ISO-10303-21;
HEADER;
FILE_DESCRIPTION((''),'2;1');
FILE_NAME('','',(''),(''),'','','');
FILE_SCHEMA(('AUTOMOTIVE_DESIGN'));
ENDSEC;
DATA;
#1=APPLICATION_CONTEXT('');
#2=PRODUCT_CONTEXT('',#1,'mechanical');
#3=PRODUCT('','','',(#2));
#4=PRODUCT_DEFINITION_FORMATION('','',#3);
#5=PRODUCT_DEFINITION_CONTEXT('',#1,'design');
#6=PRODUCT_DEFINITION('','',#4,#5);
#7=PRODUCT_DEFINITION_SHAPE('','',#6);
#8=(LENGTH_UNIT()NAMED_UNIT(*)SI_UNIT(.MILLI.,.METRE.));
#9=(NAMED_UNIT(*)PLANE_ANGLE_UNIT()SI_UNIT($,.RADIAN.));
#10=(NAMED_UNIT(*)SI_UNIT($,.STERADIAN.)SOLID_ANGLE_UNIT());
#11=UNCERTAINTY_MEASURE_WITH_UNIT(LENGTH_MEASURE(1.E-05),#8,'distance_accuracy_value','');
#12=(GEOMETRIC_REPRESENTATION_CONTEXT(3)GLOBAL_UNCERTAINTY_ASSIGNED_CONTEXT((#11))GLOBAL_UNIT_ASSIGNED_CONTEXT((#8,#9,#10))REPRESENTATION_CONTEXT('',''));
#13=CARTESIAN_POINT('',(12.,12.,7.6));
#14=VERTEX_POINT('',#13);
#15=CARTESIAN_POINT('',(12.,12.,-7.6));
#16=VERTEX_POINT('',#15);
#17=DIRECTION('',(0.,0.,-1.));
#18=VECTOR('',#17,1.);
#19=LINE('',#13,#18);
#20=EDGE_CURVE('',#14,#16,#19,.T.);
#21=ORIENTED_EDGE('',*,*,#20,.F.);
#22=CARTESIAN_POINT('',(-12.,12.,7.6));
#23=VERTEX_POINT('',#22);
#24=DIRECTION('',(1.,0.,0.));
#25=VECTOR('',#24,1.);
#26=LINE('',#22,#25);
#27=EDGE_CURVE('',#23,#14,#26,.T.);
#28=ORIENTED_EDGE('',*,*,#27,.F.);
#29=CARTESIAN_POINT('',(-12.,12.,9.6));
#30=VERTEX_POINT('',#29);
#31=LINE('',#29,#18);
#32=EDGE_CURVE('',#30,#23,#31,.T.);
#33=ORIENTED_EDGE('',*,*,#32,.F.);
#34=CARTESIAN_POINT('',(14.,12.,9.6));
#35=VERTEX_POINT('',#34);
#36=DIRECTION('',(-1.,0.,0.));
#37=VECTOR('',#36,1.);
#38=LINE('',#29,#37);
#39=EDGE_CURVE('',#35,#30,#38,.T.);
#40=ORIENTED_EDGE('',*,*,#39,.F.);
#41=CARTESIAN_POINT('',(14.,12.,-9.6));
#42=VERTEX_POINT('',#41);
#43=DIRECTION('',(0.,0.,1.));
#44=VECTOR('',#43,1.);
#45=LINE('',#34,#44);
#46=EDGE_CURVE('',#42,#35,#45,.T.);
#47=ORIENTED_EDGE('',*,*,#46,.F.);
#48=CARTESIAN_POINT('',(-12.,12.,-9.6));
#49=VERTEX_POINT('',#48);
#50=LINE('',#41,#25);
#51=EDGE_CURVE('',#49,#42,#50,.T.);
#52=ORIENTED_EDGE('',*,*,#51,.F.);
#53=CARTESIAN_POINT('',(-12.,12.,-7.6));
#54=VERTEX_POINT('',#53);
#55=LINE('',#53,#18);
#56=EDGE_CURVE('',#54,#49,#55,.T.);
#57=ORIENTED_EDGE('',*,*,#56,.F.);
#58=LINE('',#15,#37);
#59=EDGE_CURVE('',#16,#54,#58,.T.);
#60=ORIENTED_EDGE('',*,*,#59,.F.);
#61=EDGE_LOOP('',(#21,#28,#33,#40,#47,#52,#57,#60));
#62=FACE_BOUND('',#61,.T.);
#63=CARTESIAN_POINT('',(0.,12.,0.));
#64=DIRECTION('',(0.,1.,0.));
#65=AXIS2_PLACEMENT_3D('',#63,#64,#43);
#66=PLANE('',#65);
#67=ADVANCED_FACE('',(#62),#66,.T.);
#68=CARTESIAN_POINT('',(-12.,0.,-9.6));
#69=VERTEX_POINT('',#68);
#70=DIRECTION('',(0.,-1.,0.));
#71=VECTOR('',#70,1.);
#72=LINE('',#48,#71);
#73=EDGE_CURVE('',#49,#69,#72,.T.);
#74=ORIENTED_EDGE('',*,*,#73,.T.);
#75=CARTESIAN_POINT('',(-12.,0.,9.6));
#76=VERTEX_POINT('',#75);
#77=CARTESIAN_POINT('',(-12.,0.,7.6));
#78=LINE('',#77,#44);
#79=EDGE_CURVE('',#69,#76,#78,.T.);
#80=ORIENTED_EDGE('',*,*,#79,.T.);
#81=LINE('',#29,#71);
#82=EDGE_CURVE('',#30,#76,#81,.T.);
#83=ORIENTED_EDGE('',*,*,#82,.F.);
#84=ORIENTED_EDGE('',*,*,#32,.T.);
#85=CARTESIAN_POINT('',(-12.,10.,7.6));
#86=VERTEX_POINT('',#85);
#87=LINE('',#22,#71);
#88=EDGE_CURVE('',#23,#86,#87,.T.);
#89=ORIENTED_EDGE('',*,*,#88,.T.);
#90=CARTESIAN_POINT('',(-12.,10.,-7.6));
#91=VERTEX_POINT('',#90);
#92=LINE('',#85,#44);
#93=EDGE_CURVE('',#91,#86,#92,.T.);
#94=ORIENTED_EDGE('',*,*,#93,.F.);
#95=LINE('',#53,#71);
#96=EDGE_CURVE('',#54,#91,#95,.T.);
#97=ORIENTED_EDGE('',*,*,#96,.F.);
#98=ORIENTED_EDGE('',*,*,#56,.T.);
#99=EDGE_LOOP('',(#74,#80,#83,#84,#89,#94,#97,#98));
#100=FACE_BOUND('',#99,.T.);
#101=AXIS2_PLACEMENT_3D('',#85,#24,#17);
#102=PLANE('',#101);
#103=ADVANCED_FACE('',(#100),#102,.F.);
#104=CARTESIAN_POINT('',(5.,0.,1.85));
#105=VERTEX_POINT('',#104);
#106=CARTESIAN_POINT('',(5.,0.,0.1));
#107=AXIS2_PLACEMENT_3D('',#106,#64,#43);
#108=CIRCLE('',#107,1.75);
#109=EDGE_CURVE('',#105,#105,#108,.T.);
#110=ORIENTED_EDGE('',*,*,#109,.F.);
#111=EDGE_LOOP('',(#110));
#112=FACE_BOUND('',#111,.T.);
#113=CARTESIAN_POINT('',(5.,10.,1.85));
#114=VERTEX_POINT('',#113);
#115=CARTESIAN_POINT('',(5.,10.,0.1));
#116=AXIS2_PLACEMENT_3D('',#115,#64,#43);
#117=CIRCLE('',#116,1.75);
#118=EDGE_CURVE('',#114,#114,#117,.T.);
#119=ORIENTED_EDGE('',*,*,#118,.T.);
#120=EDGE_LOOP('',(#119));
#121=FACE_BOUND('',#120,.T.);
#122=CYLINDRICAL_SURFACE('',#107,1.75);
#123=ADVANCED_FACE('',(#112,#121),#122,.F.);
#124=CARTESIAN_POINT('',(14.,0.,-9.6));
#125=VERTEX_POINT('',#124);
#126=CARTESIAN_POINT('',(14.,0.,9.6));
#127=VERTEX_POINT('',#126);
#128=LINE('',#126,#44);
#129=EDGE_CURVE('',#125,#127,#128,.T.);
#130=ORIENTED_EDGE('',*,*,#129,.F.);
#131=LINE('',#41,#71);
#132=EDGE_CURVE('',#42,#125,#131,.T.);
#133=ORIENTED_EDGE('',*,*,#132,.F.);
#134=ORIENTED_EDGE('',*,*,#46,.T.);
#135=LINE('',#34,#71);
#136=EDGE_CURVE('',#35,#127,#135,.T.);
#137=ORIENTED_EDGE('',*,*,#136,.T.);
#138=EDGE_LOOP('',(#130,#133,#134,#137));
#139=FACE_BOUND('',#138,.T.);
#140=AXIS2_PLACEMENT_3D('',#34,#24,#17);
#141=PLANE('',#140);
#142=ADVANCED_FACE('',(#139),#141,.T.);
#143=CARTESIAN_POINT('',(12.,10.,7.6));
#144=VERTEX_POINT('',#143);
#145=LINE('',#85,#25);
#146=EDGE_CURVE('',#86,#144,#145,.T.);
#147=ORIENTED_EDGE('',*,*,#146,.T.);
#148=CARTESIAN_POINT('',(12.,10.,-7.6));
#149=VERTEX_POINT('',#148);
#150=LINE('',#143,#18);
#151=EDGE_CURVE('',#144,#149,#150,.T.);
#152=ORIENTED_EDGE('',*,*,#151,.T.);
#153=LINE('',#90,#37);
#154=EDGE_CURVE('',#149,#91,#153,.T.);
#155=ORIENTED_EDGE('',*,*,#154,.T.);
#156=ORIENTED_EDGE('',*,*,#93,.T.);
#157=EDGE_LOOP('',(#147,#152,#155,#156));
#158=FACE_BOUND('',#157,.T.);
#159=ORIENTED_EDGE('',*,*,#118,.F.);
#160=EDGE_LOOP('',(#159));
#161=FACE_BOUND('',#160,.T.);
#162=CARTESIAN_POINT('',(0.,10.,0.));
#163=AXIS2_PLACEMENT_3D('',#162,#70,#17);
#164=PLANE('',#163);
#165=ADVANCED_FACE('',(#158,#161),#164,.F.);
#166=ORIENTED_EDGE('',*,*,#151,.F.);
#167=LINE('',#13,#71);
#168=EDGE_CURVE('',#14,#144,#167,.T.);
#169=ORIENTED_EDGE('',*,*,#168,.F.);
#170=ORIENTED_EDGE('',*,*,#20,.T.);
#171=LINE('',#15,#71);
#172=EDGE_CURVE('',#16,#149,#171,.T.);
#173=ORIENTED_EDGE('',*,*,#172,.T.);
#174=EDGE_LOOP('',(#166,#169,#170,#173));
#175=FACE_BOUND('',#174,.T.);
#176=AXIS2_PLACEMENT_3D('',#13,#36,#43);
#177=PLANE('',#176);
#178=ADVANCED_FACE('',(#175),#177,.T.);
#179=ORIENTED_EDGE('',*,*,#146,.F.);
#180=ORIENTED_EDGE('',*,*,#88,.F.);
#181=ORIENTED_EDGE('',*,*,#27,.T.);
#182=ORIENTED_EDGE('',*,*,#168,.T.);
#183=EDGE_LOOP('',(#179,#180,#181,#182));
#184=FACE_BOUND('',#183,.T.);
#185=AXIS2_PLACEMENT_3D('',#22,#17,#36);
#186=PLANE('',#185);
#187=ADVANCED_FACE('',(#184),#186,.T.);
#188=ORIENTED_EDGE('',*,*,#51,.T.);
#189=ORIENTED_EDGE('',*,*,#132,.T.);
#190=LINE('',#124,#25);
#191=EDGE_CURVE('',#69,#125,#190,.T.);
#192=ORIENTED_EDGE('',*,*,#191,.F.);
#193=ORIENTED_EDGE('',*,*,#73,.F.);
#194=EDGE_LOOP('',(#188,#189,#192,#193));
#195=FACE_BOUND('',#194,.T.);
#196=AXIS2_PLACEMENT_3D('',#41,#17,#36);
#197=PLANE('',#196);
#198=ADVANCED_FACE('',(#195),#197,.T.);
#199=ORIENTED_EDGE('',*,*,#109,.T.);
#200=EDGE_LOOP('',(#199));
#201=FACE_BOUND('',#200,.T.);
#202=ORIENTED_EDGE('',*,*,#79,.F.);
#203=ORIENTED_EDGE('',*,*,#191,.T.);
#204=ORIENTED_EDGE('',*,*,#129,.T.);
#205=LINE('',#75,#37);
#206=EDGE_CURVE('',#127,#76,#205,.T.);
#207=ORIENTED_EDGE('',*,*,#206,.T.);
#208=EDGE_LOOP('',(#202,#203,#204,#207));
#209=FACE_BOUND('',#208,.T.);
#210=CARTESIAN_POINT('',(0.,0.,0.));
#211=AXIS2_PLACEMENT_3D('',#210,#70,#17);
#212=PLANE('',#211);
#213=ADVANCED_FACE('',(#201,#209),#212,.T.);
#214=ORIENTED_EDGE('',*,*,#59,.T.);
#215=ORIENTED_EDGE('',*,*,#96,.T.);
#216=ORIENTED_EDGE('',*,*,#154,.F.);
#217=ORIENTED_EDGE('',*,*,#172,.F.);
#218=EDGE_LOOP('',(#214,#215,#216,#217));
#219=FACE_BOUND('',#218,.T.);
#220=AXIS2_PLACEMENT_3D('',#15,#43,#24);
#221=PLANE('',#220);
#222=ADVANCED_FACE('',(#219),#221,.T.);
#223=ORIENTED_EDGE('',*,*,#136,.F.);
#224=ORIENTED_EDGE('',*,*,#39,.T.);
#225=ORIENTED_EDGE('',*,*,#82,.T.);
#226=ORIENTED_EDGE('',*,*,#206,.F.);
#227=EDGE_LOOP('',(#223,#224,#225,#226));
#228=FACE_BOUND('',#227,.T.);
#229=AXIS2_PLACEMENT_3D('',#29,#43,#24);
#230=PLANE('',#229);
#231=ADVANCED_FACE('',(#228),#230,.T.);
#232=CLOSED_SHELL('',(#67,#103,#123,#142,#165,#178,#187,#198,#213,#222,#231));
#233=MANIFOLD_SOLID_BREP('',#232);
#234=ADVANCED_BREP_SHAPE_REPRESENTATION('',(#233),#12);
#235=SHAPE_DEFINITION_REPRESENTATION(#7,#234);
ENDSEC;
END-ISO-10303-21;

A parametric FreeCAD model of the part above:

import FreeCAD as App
import Part
import Sketcher
from FreeCAD import Vector
Q = App.Units.Quantity


def add_polygon(sketch, points):
    """Adds a closed chain of lines whose ends are joined by coincident constraints."""
    first, n = sketch.GeometryCount, len(points)
    for a, b in zip(points, points[1:] + points[:1]):
        sketch.addGeometry(Part.LineSegment(App.Vector(*a, 0), App.Vector(*b, 0)), False)
    for i in range(n):
        sketch.addConstraint(Sketcher.Constraint("Coincident", first + i, 2, first + (i + 1) % n, 1))

doc = App.newDocument("Part")
body = doc.addObject("PartDesign::Body", "Body")

# Sketch on XZ plane
sketch1 = body.newObject("Sketcher::SketchObject", "Sketch")
sketch1.AttachmentSupport = (doc.getObject("XZ_Plane"), [""])
sketch1.MapMode = "FlatFace"
add_polygon(sketch1, [(-12, -8), (-12, 8), (12, 8), (12, -8)])  # lines 0-3
sketch1.addConstraint([
    Sketcher.Constraint("Vertical", 0),
    Sketcher.Constraint("Horizontal", 1),
    Sketcher.Constraint("Vertical", 2),
    Sketcher.Constraint("Horizontal", 3),
    Sketcher.Constraint("Symmetric", 0, 2, 2, 2, -1, 1),
    Sketcher.Constraint("DistanceX", 1, 1, 1, 2, Q("24 mm")),
    Sketcher.Constraint("DistanceY", 0, 1, 0, 2, Q("15.2 mm")),
])
pad1 = body.newObject("PartDesign::Pad", "Pad")
pad1.Profile = sketch1
pad1.Length = 10
pad1.Reversed = True

# Sketch on XZ plane
sketch2 = body.newObject("Sketcher::SketchObject", "Sketch001")
sketch2.AttachmentSupport = (doc.getObject("XZ_Plane"), [""])
sketch2.MapMode = "FlatFace"
sketch2.AttachmentOffset = App.Placement(Vector(0, 0, -10), App.Rotation())
sketch2.addGeometry(Part.Circle(Vector(5, 0.1, 0), Vector(0, 0, 1), 1.8), False)
sketch2.addConstraint([
    Sketcher.Constraint("Diameter", 0, Q("3.5 mm")),
    Sketcher.Constraint("DistanceX", -1, 1, 0, 3, Q("5 mm")),
    Sketcher.Constraint("DistanceY", -1, 1, 0, 3, Q("0.1 mm")),
])
pocket1 = body.newObject("PartDesign::Pocket", "Pocket")
pocket1.Profile = sketch2
pocket1.Length = 10
pocket1.Reversed = True

# Sketch on XZ plane
sketch3 = body.newObject("Sketcher::SketchObject", "Sketch002")
sketch3.AttachmentSupport = (doc.getObject("XZ_Plane"), [""])
sketch3.MapMode = "FlatFace"
add_polygon(sketch3, [(-12, 9.6), (-12, 7.6), (12, 7.6), (12, -7.6), (-12, -7.6), (-12, -9.6), (14, -9.6), (14, 9.6)])  # lines 0-7
sketch3.addConstraint([
    Sketcher.Constraint("Vertical", 0),
    Sketcher.Constraint("Horizontal", 1),
    Sketcher.Constraint("Vertical", 2),
    Sketcher.Constraint("Horizontal", 3),
    Sketcher.Constraint("Vertical", 4),
    Sketcher.Constraint("Horizontal", 5),
    Sketcher.Constraint("Vertical", 6),
    Sketcher.Constraint("Horizontal", 7),
    Sketcher.Constraint("Symmetric", 0, 2, 2, 2, -1, 1),
    Sketcher.Constraint("Symmetric", 4, 2, 7, 2, -1),
    Sketcher.Constraint("DistanceX", 1, 1, 1, 2, Q("24 mm")),
    Sketcher.Constraint("DistanceX", 5, 1, 5, 2, Q("26 mm")),
    Sketcher.Constraint("DistanceY", 0, 2, 0, 1, Q("2 mm")),
    Sketcher.Constraint("DistanceY", 2, 2, 2, 1, Q("15.2 mm")),
])
pad2 = body.newObject("PartDesign::Pad", "Pad001")
pad2.Profile = sketch3
pad2.Length = 12
pad2.Reversed = True

doc.recompute()
